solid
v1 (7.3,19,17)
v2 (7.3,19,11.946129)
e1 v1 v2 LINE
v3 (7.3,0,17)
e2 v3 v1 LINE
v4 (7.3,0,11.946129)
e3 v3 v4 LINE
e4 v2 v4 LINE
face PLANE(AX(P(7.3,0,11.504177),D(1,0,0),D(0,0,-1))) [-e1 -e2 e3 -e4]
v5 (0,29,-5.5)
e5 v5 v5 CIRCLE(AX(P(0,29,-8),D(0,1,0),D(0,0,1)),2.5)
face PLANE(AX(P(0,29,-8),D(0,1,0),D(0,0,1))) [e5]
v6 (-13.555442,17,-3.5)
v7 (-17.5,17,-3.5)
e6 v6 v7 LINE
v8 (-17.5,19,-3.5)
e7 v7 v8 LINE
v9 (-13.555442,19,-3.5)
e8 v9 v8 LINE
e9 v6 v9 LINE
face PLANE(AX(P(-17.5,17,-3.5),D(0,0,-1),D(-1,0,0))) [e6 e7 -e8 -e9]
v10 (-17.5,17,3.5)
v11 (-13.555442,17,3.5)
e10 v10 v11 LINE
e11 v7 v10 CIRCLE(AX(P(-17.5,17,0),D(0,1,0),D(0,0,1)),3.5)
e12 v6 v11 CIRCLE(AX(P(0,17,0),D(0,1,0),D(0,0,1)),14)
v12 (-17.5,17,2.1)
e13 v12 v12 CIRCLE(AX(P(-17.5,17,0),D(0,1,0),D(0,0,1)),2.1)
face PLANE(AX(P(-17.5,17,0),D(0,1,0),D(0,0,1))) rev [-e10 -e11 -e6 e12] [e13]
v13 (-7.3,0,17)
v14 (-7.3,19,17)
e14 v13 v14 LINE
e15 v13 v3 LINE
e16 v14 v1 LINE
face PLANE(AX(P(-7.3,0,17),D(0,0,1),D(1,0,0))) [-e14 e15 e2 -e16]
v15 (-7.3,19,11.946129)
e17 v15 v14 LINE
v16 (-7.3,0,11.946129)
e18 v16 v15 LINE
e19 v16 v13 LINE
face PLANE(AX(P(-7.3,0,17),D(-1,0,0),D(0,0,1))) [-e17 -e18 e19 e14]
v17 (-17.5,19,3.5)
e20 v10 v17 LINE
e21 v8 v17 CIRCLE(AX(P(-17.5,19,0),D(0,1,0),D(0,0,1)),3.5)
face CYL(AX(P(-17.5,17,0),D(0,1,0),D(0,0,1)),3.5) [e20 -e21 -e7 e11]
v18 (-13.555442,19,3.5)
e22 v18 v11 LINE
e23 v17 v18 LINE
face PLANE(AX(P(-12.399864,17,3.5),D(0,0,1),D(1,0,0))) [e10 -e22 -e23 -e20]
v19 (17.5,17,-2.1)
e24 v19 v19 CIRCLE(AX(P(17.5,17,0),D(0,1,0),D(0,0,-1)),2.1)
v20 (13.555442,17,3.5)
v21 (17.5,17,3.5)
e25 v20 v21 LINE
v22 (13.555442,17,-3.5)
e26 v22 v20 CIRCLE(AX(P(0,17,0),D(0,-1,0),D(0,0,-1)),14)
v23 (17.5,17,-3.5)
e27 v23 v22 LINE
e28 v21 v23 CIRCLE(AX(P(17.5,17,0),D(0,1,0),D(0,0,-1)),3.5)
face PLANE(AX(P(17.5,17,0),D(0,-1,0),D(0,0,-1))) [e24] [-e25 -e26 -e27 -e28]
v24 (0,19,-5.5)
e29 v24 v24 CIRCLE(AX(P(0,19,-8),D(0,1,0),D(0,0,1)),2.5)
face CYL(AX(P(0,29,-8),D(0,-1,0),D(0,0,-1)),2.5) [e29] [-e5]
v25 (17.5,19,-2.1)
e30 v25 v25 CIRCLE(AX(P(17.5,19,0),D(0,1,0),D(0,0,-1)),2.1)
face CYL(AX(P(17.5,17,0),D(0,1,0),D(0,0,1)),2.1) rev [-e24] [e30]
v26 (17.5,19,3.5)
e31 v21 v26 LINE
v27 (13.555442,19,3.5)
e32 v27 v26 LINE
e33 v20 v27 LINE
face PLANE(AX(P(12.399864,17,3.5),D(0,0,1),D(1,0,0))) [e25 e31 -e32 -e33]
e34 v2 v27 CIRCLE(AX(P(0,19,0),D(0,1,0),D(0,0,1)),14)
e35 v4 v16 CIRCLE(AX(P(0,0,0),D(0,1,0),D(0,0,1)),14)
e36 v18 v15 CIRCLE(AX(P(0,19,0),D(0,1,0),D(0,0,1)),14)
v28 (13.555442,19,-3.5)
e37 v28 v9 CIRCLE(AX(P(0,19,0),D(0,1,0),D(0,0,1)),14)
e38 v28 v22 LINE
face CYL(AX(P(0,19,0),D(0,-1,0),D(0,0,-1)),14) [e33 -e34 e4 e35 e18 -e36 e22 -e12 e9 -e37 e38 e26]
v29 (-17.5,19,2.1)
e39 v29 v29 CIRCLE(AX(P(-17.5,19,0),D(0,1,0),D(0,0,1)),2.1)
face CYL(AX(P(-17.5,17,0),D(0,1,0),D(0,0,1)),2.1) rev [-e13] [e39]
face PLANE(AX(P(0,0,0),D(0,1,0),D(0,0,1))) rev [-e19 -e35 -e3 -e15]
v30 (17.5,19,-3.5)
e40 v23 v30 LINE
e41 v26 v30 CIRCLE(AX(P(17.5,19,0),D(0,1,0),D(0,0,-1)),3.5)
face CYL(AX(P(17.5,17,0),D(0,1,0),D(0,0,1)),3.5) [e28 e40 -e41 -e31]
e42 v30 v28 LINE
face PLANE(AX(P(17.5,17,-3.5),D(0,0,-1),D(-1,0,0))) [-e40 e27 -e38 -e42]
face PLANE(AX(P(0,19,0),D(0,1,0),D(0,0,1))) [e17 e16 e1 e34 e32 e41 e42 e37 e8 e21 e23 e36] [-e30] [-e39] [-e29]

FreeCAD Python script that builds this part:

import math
import FreeCAD as App
import Part
import Sketcher
from FreeCAD import Vector
Q = App.Units.Quantity

doc = App.newDocument("Part")
body = doc.addObject("PartDesign::Body", "Body")

sketch1 = doc.addObject("Sketcher::SketchObject", "Sketch")
body.addObject(sketch1)
sketch1.AttachmentSupport = (doc.XZ_Plane, [""])
sketch1.MapMode = "FlatFace"
sketch1.addGeometry(Part.Circle(Vector(0, 0, 0), Vector(0, 0, 1), 14), False)
sketch1.addConstraint([
    Sketcher.Constraint("Coincident", 0, 3, -1, 1),
    Sketcher.Constraint("Diameter", 0, Q("28 mm")),
])
pad1 = doc.addObject("PartDesign::Pad", "Pad")
body.addObject(pad1)
pad1.Profile = sketch1
pad1.Length = 19
pad1.Reversed = True

sketch2 = doc.addObject("Sketcher::SketchObject", "Sketch001")
body.addObject(sketch2)
sketch2.AttachmentSupport = (doc.XZ_Plane, [""])
sketch2.MapMode = "FlatFace"
sketch2.AttachmentOffset = App.Placement(Vector(0, 0, -19), App.Rotation())
sketch2.addGeometry([
    Part.LineSegment(Vector(-7, 12, 0), Vector(-7, 17, 0)),
    Part.LineSegment(Vector(-7, 17, 0), Vector(7, 17, 0)),
    Part.LineSegment(Vector(7, 17, 0), Vector(7, 12, 0)),
    Part.LineSegment(Vector(7, 12, 0), Vector(-7, 12, 0)),
], False)
sketch2.addConstraint([
    Sketcher.Constraint("Coincident", 0, 2, 1, 1),
    Sketcher.Constraint("Coincident", 1, 2, 2, 1),
    Sketcher.Constraint("Coincident", 2, 2, 3, 1),
    Sketcher.Constraint("Coincident", 3, 2, 0, 1),
    Sketcher.Constraint("Vertical", 0),
    Sketcher.Constraint("Horizontal", 1),
    Sketcher.Constraint("Vertical", 2),
    Sketcher.Constraint("Horizontal", 3),
    Sketcher.Constraint("DistanceX", 1, 1, 1, 2, Q("14.6 mm")),
    Sketcher.Constraint("DistanceY", -1, 1, 0, 2, Q("17 mm")),
    Sketcher.Constraint("DistanceX", 0, 2, -1, 1, Q("7.3 mm")),
    Sketcher.Constraint("DistanceY", 0, 1, 0, 2, Q("5.495823 mm")),
])
pad2 = doc.addObject("PartDesign::Pad", "Pad001")
body.addObject(pad2)
pad2.Profile = sketch2
pad2.Length = 19

sketch3 = doc.addObject("Sketcher::SketchObject", "Sketch002")
body.addObject(sketch3)
sketch3.AttachmentSupport = (doc.XZ_Plane, [""])
sketch3.MapMode = "FlatFace"
sketch3.AttachmentOffset = App.Placement(Vector(0, 0, -19), App.Rotation())
sketch3.addGeometry([
    Part.LineSegment(Vector(-12.4, -3.5, 0), Vector(-17.5, -3.5, 0)),
    Part.ArcOfCircle(Part.Circle(Vector(-17.5, 0, 0), Vector(0, 0, 1), 3.5), math.radians(90), math.radians(270)),
    Part.LineSegment(Vector(-17.5, 3.5, 0), Vector(-12.4, 3.5, 0)),
    Part.LineSegment(Vector(-12.4, 3.5, 0), Vector(-12.4, -3.5, 0)),
    Part.Circle(Vector(-17.5, 0, 0), Vector(0, 0, 1), 2.1),
    Part.LineSegment(Vector(12.4, 3.5, 0), Vector(17.5, 3.5, 0)),
    Part.ArcOfCircle(Part.Circle(Vector(17.5, 0, 0), Vector(0, 0, 1), 3.5), math.radians(-90), math.radians(90)),
    Part.LineSegment(Vector(17.5, -3.5, 0), Vector(12.4, -3.5, 0)),
    Part.LineSegment(Vector(12.4, -3.5, 0), Vector(12.4, 3.5, 0)),
    Part.Circle(Vector(17.5, 0, 0), Vector(0, 0, 1), 2.1),
], False)
sketch3.addConstraint([
    Sketcher.Constraint("Tangent", 0, 2, 1, 2),
    Sketcher.Constraint("Tangent", 1, 1, 2, 1),
    Sketcher.Constraint("Coincident", 2, 2, 3, 1),
    Sketcher.Constraint("Coincident", 3, 2, 0, 1),
    Sketcher.Constraint("Tangent", 5, 2, 6, 2),
    Sketcher.Constraint("Tangent", 6, 1, 7, 1),
    Sketcher.Constraint("Coincident", 7, 2, 8, 1),
    Sketcher.Constraint("Coincident", 8, 2, 5, 1),
    Sketcher.Constraint("Horizontal", 0),
    Sketcher.Constraint("Horizontal", 2),
    Sketcher.Constraint("Vertical", 3),
    Sketcher.Constraint("Horizontal", 5),
    Sketcher.Constraint("Horizontal", 7),
    Sketcher.Constraint("Vertical", 8),
    Sketcher.Constraint("Coincident", 4, 3, 1, 3),
    Sketcher.Constraint("Coincident", 9, 3, 6, 3),
    Sketcher.Constraint("Equal", 1, 6),
    Sketcher.Constraint("Equal", 4, 9),
    Sketcher.Constraint("Symmetric", 1, 3, 6, 3, -1, 1),
    Sketcher.Constraint("Symmetric", 3, 2, 7, 2, -2),
    Sketcher.Constraint("Diameter", 4, Q("4.2 mm")),
    Sketcher.Constraint("Radius", 1, Q("3.5 mm")),
    Sketcher.Constraint("DistanceX", 1, 3, 6, 3, Q("35 mm")),
    Sketcher.Constraint("DistanceX", 0, 2, 0, 1, Q("5.100136 mm")),
])
pad3 = doc.addObject("PartDesign::Pad", "Pad002")
body.addObject(pad3)
pad3.Profile = sketch3
pad3.Length = 2

sketch4 = doc.addObject("Sketcher::SketchObject", "Sketch003")
body.addObject(sketch4)
sketch4.AttachmentSupport = (doc.XZ_Plane, [""])
sketch4.MapMode = "FlatFace"
sketch4.AttachmentOffset = App.Placement(Vector(0, 0, -19), App.Rotation())
sketch4.addGeometry(Part.Circle(Vector(0, -8, 0), Vector(0, 0, 1), 2.5), False)
sketch4.addConstraint([
    Sketcher.Constraint("PointOnObject", 0, 3, -2),
    Sketcher.Constraint("Diameter", 0, Q("5 mm")),
    Sketcher.Constraint("DistanceY", 0, 3, -1, 1, Q("8 mm")),
])
pad4 = doc.addObject("PartDesign::Pad", "Pad003")
body.addObject(pad4)
pad4.Profile = sketch4
pad4.Length = 10
pad4.Reversed = True

doc.recompute()
